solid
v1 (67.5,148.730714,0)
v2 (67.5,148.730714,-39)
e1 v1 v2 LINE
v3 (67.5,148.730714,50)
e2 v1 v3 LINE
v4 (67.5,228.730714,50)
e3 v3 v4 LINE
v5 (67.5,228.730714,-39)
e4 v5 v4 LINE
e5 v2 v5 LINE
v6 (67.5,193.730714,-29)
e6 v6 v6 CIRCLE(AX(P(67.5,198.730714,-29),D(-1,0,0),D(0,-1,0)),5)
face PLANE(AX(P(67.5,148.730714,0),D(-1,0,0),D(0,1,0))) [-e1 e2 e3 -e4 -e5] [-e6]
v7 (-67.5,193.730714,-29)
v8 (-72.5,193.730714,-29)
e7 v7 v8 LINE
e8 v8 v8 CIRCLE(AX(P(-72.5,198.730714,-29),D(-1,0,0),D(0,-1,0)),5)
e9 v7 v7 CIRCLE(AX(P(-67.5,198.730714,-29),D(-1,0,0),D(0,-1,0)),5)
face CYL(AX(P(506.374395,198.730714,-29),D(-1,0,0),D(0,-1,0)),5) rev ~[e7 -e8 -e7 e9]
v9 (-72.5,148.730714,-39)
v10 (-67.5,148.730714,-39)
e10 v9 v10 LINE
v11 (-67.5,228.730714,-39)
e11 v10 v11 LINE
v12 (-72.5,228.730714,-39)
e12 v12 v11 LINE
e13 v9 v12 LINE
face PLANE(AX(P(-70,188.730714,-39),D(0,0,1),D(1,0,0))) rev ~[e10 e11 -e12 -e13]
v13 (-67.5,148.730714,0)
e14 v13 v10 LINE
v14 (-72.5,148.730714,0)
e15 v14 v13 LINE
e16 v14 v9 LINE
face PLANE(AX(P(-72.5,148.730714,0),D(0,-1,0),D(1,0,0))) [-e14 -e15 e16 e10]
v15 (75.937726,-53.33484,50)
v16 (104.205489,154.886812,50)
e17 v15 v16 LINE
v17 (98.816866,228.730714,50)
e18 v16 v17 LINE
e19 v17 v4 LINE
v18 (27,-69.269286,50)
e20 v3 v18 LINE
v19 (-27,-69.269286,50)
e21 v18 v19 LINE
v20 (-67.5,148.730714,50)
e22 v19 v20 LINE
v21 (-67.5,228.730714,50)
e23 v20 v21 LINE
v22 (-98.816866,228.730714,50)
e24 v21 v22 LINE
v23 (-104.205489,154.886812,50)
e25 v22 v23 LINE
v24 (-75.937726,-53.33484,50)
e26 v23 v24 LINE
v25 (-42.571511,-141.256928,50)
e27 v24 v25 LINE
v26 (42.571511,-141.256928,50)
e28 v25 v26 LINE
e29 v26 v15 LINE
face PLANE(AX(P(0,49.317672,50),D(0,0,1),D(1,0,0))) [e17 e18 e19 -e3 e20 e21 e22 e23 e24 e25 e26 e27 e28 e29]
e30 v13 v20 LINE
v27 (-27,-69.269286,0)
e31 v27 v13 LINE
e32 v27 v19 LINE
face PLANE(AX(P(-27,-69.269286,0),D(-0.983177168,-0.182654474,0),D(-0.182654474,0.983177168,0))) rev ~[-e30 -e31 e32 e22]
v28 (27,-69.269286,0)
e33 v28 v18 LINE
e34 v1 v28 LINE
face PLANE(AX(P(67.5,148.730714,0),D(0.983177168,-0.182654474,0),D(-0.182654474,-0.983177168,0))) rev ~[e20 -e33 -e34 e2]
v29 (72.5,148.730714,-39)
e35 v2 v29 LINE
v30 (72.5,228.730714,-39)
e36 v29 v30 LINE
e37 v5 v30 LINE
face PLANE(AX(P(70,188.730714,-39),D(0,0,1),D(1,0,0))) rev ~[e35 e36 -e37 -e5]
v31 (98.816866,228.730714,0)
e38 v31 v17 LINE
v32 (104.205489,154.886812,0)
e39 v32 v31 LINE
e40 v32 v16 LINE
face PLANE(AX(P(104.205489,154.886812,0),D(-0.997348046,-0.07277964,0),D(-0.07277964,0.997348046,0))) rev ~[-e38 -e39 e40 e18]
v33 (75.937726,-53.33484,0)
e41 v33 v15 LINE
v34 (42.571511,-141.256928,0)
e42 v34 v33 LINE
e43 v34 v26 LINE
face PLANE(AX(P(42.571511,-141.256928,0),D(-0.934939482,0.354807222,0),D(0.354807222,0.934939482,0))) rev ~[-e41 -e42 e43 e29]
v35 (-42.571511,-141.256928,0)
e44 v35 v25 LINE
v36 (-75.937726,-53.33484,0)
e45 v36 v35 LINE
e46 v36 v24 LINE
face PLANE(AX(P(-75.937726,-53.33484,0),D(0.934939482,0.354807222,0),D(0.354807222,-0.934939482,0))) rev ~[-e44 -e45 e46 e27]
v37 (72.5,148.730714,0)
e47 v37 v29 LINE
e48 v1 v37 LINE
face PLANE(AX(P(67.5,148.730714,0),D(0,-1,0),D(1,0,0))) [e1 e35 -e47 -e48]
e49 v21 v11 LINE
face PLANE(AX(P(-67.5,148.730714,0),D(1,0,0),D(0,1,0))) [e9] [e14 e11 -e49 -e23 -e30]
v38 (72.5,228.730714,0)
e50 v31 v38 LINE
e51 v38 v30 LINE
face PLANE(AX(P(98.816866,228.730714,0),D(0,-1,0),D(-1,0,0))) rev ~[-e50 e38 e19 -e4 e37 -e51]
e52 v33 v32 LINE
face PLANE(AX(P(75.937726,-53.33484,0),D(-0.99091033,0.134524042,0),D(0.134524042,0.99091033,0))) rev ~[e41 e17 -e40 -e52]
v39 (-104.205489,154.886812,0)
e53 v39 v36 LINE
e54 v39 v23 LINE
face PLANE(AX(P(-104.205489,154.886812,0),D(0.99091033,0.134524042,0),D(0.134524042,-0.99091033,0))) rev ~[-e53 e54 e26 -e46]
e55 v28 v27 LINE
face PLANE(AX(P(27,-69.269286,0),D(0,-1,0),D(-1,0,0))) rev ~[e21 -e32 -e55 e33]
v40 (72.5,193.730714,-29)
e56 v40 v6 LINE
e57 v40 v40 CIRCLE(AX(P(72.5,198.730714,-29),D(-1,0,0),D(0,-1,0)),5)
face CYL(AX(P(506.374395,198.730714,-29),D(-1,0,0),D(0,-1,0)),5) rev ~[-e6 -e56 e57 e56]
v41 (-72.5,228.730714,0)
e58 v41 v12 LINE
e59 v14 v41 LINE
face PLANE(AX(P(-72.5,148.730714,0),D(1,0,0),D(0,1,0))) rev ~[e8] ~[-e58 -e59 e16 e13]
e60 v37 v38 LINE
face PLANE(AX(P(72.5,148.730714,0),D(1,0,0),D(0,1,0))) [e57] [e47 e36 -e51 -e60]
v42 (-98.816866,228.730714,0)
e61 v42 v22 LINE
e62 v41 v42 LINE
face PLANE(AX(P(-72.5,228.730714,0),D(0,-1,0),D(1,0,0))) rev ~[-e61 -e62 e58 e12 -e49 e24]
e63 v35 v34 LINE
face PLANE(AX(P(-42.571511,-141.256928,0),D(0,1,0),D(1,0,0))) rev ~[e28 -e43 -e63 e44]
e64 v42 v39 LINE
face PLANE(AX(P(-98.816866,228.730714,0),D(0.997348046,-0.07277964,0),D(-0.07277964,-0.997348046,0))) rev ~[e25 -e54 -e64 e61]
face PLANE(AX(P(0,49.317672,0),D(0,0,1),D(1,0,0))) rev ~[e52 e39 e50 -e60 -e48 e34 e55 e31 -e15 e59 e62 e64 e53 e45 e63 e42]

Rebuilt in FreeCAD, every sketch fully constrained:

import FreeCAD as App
import Part
import Sketcher

doc = App.newDocument("Part")
body = doc.addObject("PartDesign::Body", "Body")

# Sketch on XY plane
sketch1 = doc.addObject("Sketcher::SketchObject", "Sketch")
body.addObject(sketch1)
sketch1.AttachmentSupport = (doc.XY_Plane, [""])
sketch1.MapMode = "FlatFace"
sketch1.addGeometry([
    Part.LineSegment(App.Vector(-43, -141, 0), App.Vector(43, -141, 0)),  # 0
    Part.LineSegment(App.Vector(43, -141, 0), App.Vector(76, -53, 0)),  # 1
    Part.LineSegment(App.Vector(76, -53, 0), App.Vector(104, 155, 0)),  # 2
    Part.LineSegment(App.Vector(104, 155, 0), App.Vector(99, 229, 0)),  # 3
    Part.LineSegment(App.Vector(99, 229, 0), App.Vector(68, 229, 0)),  # 4
    Part.LineSegment(App.Vector(68, 229, 0), App.Vector(68, 149, 0)),  # 5
    Part.LineSegment(App.Vector(68, 149, 0), App.Vector(27, -69, 0)),  # 6
    Part.LineSegment(App.Vector(27, -69, 0), App.Vector(-27, -69, 0)),  # 7
    Part.LineSegment(App.Vector(-27, -69, 0), App.Vector(-68, 149, 0)),  # 8
    Part.LineSegment(App.Vector(-68, 149, 0), App.Vector(-68, 229, 0)),  # 9
    Part.LineSegment(App.Vector(-68, 229, 0), App.Vector(-99, 229, 0)),  # 10
    Part.LineSegment(App.Vector(-99, 229, 0), App.Vector(-104, 155, 0)),  # 11
    Part.LineSegment(App.Vector(-104, 155, 0), App.Vector(-76, -53, 0)),  # 12
    Part.LineSegment(App.Vector(-76, -53, 0), App.Vector(-43, -141, 0)),  # 13
], False)
sketch1.addConstraint([
    Sketcher.Constraint("Coincident", 0, 2, 1, 1),
    Sketcher.Constraint("Coincident", 1, 2, 2, 1),
    Sketcher.Constraint("Coincident", 2, 2, 3, 1),
    Sketcher.Constraint("Coincident", 3, 2, 4, 1),
    Sketcher.Constraint("Coincident", 4, 2, 5, 1),
    Sketcher.Constraint("Coincident", 5, 2, 6, 1),
    Sketcher.Constraint("Coincident", 6, 2, 7, 1),
    Sketcher.Constraint("Coincident", 7, 2, 8, 1),
    Sketcher.Constraint("Coincident", 8, 2, 9, 1),
    Sketcher.Constraint("Coincident", 9, 2, 10, 1),
    Sketcher.Constraint("Coincident", 10, 2, 11, 1),
    Sketcher.Constraint("Coincident", 11, 2, 12, 1),
    Sketcher.Constraint("Coincident", 12, 2, 13, 1),
    Sketcher.Constraint("Coincident", 13, 2, 0, 1),
    Sketcher.Constraint("Horizontal", 0),
    Sketcher.Constraint("Horizontal", 4),
    Sketcher.Constraint("Vertical", 5),
    Sketcher.Constraint("Horizontal", 7),
    Sketcher.Constraint("Vertical", 9),
    Sketcher.Constraint("Horizontal", 10),
    Sketcher.Constraint("Symmetric", 5, 2, 8, 2, -2),
    Sketcher.Constraint("Symmetric", 3, 2, 10, 2, -2),
    Sketcher.Constraint("Symmetric", 2, 2, 11, 2, -2),
    Sketcher.Constraint("Symmetric", 1, 2, 12, 2, -2),
    Sketcher.Constraint("Equal", 6, 8),
    Sketcher.Constraint("Equal", 1, 13),
    Sketcher.Constraint("DistanceX", 7, 2, 7, 1, 54.0),
    Sketcher.Constraint("DistanceY", 5, 2, 5, 1, 80.0),
    Sketcher.Constraint("DistanceY", 6, 2, 5, 2, 218.0),
    Sketcher.Constraint("DistanceX", 8, 2, 5, 2, 135.0),
    Sketcher.Constraint("DistanceX", 0, 1, 0, 2, 85.143022),
    Sketcher.Constraint("Distance", 2, 210.13168),
    Sketcher.Constraint("DistanceX", 4, 2, 4, 1, 31.316866),
    Sketcher.Constraint("DistanceY", 1, 2, -1, 1, 53.33484),
    Sketcher.Constraint("DistanceX", -1, 1, 2, 2, 104.205489),
    Sketcher.Constraint("DistanceY", -1, 1, 2, 2, 154.886812),
    Sketcher.Constraint("DistanceY", 0, 2, 2, 2, 296.14374),
    Sketcher.Constraint("DistanceY", 0, 2, 3, 2, 369.987642),
])
pad1 = doc.addObject("PartDesign::Pad", "Pad")
body.addObject(pad1)
pad1.Profile = sketch1
pad1.Length = 50

# Sketch on XY plane
sketch2 = doc.addObject("Sketcher::SketchObject", "Sketch001")
body.addObject(sketch2)
sketch2.AttachmentSupport = (doc.XY_Plane, [""])
sketch2.MapMode = "FlatFace"
sketch2.addGeometry([
    Part.LineSegment(App.Vector(-72, 229, 0), App.Vector(-72, 149, 0)),  # 0
    Part.LineSegment(App.Vector(-72, 149, 0), App.Vector(-68, 149, 0)),  # 1
    Part.LineSegment(App.Vector(-68, 149, 0), App.Vector(-68, 229, 0)),  # 2
    Part.LineSegment(App.Vector(-68, 229, 0), App.Vector(-72, 229, 0)),  # 3
    Part.LineSegment(App.Vector(68, 229, 0), App.Vector(68, 149, 0)),  # 4
    Part.LineSegment(App.Vector(68, 149, 0), App.Vector(72, 149, 0)),  # 5
    Part.LineSegment(App.Vector(72, 149, 0), App.Vector(72, 229, 0)),  # 6
    Part.LineSegment(App.Vector(72, 229, 0), App.Vector(68, 229, 0)),  # 7
], False)
sketch2.addConstraint([
    Sketcher.Constraint("Coincident", 0, 2, 1, 1),
    Sketcher.Constraint("Coincident", 1, 2, 2, 1),
    Sketcher.Constraint("Coincident", 2, 2, 3, 1),
    Sketcher.Constraint("Coincident", 3, 2, 0, 1),
    Sketcher.Constraint("Coincident", 4, 2, 5, 1),
    Sketcher.Constraint("Coincident", 5, 2, 6, 1),
    Sketcher.Constraint("Coincident", 6, 2, 7, 1),
    Sketcher.Constraint("Coincident", 7, 2, 4, 1),
    Sketcher.Constraint("Vertical", 0),
    Sketcher.Constraint("Horizontal", 1),
    Sketcher.Constraint("Vertical", 2),
    Sketcher.Constraint("Horizontal", 3),
    Sketcher.Constraint("Vertical", 4),
    Sketcher.Constraint("Horizontal", 5),
    Sketcher.Constraint("Vertical", 6),
    Sketcher.Constraint("Horizontal", 7),
    Sketcher.Constraint("Symmetric", 1, 2, 4, 2, -2),
    Sketcher.Constraint("Symmetric", 3, 2, 6, 2, -2),
    Sketcher.Constraint("DistanceX", 1, 1, 1, 2, 5.0),
    Sketcher.Constraint("DistanceY", 0, 2, 0, 1, 80.0),
    Sketcher.Constraint("DistanceX", 1, 2, 4, 2, 135.0),
    Sketcher.Constraint("DistanceY", -1, 1, 0, 2, 148.730714),
])
pad2 = doc.addObject("PartDesign::Pad", "Pad001")
body.addObject(pad2)
pad2.Profile = sketch2
pad2.Length = 39
pad2.Reversed = True

# Sketch on YZ plane
sketch3 = doc.addObject("Sketcher::SketchObject", "Sketch002")
body.addObject(sketch3)
sketch3.AttachmentSupport = (doc.YZ_Plane, [""])
sketch3.MapMode = "FlatFace"
sketch3.AttachmentOffset = App.Placement(App.Vector(0, 0, 72.5), App.Rotation())
sketch3.addGeometry(Part.Circle(App.Vector(199, -29, 0), App.Vector(0, 0, 1), 5), False)
sketch3.addConstraint([
    Sketcher.Constraint("Diameter", 0, 10.0),
    Sketcher.Constraint("DistanceY", 0, 3, -1, 1, 29.0),
    Sketcher.Constraint("DistanceX", -1, 1, 0, 3, 198.730714),
])
doc.recompute()
hole = doc.addObject("PartDesign::Hole", "Hole")
body.addObject(hole)
hole.Profile = sketch3
hole.ThreadType = "None"
hole.Diameter = 10
hole.DepthType = "ThroughAll"

doc.recompute()
